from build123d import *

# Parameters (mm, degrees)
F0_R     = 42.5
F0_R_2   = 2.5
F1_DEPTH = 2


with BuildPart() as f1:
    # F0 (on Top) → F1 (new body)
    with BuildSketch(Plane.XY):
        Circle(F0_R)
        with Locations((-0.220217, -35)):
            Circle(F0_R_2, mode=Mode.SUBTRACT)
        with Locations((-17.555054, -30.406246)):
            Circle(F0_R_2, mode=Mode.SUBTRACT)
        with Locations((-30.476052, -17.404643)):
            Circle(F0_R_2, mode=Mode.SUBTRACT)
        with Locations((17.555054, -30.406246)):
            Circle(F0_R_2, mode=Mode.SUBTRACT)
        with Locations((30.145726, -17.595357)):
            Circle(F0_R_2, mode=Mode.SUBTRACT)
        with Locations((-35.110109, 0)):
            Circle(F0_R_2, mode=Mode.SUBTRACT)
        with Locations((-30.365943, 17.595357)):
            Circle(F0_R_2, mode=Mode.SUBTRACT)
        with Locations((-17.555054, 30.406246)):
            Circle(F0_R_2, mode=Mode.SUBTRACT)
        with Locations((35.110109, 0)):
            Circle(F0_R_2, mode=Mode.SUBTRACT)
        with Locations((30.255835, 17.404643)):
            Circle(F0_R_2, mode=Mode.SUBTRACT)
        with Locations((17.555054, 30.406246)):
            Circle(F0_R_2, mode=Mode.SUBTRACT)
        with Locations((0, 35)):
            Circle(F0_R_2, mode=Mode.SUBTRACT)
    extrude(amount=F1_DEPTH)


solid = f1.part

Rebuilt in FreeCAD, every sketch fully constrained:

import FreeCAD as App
import Part
import Sketcher
Q = App.Units.Quantity

doc = App.newDocument("Part")
body = doc.addObject("PartDesign::Body", "Body")

sketch1 = doc.addObject("Sketcher::SketchObject", "Sketch")
body.addObject(sketch1)
sketch1.AttachmentSupport = (doc.XY_Plane, [""])
sketch1.MapMode = "FlatFace"
sketch1.addGeometry([
    Part.Circle(App.Vector(0, 0, 0), App.Vector(0, 0, 1), 42.5),
    Part.Circle(App.Vector(-17.6, -30.4, 0), App.Vector(0, 0, 1), 2.5),
    Part.Circle(App.Vector(-0.2, -35, 0), App.Vector(0, 0, 1), 2.5),
    Part.Circle(App.Vector(-30.5, -17.4, 0), App.Vector(0, 0, 1), 2.5),
    Part.Circle(App.Vector(17.6, -30.4, 0), App.Vector(0, 0, 1), 2.5),
    Part.Circle(App.Vector(30.1, -17.6, 0), App.Vector(0, 0, 1), 2.5),
    Part.Circle(App.Vector(-35.1, 0, 0), App.Vector(0, 0, 1), 2.5),
    Part.Circle(App.Vector(-30.4, 17.6, 0), App.Vector(0, 0, 1), 2.5),
    Part.Circle(App.Vector(-17.6, 30.4, 0), App.Vector(0, 0, 1), 2.5),
    Part.Circle(App.Vector(35.1, 0, 0), App.Vector(0, 0, 1), 2.5),
    Part.Circle(App.Vector(30.3, 17.4, 0), App.Vector(0, 0, 1), 2.5),
    Part.Circle(App.Vector(0, 35, 0), App.Vector(0, 0, 1), 2.5),
    Part.Circle(App.Vector(17.6, 30.4, 0), App.Vector(0, 0, 1), 2.5),
], False)
sketch1.addConstraint([
    Sketcher.Constraint("Coincident", 0, 3, -1, 1),
    Sketcher.Constraint("Equal", 1, 2),
    Sketcher.Constraint("Equal", 2, 3),
    Sketcher.Constraint("Equal", 3, 4),
    Sketcher.Constraint("Equal", 4, 5),
    Sketcher.Constraint("Equal", 5, 6),
    Sketcher.Constraint("Equal", 6, 7),
    Sketcher.Constraint("Equal", 7, 8),
    Sketcher.Constraint("Equal", 8, 9),
    Sketcher.Constraint("Equal", 9, 10),
    Sketcher.Constraint("Equal", 10, 11),
    Sketcher.Constraint("Equal", 11, 12),
    Sketcher.Constraint("Symmetric", 4, 3, 8, 3, -1, 1),
    Sketcher.Constraint("Symmetric", 6, 3, 9, 3, -1, 1),
    Sketcher.Constraint("Symmetric", 1, 3, 12, 3, -1, 1),
    Sketcher.Constraint("Symmetric", 1, 3, 4, 3, -2),
    Sketcher.Constraint("PointOnObject", 6, 3, -1),
    Sketcher.Constraint("PointOnObject", 11, 3, -2),
    Sketcher.Constraint("Diameter", 0, Q("85 mm")),
    Sketcher.Constraint("Diameter", 1, Q("5 mm")),
    Sketcher.Constraint("DistanceY", 2, 3, -1, 1, Q("35 mm")),
    Sketcher.Constraint("DistanceY", -1, 1, 11, 3, Q("35 mm")),
    Sketcher.Constraint("DistanceY", 3, 3, 7, 3, Q("35 mm")),
    Sketcher.Constraint("DistanceY", 5, 3, 10, 3, Q("35 mm")),
    Sketcher.Constraint("DistanceX", 3, 3, 1, 3, Q("12.920998 mm")),
    Sketcher.Constraint("DistanceX", 3, 3, -1, 1, Q("30.476052 mm")),
    Sketcher.Constraint("DistanceX", 6, 3, -1, 1, Q("35.110109 mm")),
    Sketcher.Constraint("DistanceX", 2, 3, 4, 3, Q("17.775271 mm")),
    Sketcher.Constraint("DistanceY", 4, 3, 5, 3, Q("12.810889 mm")),
    Sketcher.Constraint("DistanceX", 1, 3, 5, 3, Q("47.70078 mm")),
    Sketcher.Constraint("DistanceX", 3, 3, 7, 3, Q("0.110109 mm")),
    Sketcher.Constraint("DistanceY", 7, 3, 8, 3, Q("12.810889 mm")),
    Sketcher.Constraint("DistanceX", 5, 3, 10, 3, Q("0.110109 mm")),
    Sketcher.Constraint("DistanceY", 1, 3, -1, 1, Q("30.406246 mm")),
])
pad1 = doc.addObject("PartDesign::Pad", "Pad")
body.addObject(pad1)
pad1.Profile = sketch1
pad1.Length = 2

doc.recompute()
